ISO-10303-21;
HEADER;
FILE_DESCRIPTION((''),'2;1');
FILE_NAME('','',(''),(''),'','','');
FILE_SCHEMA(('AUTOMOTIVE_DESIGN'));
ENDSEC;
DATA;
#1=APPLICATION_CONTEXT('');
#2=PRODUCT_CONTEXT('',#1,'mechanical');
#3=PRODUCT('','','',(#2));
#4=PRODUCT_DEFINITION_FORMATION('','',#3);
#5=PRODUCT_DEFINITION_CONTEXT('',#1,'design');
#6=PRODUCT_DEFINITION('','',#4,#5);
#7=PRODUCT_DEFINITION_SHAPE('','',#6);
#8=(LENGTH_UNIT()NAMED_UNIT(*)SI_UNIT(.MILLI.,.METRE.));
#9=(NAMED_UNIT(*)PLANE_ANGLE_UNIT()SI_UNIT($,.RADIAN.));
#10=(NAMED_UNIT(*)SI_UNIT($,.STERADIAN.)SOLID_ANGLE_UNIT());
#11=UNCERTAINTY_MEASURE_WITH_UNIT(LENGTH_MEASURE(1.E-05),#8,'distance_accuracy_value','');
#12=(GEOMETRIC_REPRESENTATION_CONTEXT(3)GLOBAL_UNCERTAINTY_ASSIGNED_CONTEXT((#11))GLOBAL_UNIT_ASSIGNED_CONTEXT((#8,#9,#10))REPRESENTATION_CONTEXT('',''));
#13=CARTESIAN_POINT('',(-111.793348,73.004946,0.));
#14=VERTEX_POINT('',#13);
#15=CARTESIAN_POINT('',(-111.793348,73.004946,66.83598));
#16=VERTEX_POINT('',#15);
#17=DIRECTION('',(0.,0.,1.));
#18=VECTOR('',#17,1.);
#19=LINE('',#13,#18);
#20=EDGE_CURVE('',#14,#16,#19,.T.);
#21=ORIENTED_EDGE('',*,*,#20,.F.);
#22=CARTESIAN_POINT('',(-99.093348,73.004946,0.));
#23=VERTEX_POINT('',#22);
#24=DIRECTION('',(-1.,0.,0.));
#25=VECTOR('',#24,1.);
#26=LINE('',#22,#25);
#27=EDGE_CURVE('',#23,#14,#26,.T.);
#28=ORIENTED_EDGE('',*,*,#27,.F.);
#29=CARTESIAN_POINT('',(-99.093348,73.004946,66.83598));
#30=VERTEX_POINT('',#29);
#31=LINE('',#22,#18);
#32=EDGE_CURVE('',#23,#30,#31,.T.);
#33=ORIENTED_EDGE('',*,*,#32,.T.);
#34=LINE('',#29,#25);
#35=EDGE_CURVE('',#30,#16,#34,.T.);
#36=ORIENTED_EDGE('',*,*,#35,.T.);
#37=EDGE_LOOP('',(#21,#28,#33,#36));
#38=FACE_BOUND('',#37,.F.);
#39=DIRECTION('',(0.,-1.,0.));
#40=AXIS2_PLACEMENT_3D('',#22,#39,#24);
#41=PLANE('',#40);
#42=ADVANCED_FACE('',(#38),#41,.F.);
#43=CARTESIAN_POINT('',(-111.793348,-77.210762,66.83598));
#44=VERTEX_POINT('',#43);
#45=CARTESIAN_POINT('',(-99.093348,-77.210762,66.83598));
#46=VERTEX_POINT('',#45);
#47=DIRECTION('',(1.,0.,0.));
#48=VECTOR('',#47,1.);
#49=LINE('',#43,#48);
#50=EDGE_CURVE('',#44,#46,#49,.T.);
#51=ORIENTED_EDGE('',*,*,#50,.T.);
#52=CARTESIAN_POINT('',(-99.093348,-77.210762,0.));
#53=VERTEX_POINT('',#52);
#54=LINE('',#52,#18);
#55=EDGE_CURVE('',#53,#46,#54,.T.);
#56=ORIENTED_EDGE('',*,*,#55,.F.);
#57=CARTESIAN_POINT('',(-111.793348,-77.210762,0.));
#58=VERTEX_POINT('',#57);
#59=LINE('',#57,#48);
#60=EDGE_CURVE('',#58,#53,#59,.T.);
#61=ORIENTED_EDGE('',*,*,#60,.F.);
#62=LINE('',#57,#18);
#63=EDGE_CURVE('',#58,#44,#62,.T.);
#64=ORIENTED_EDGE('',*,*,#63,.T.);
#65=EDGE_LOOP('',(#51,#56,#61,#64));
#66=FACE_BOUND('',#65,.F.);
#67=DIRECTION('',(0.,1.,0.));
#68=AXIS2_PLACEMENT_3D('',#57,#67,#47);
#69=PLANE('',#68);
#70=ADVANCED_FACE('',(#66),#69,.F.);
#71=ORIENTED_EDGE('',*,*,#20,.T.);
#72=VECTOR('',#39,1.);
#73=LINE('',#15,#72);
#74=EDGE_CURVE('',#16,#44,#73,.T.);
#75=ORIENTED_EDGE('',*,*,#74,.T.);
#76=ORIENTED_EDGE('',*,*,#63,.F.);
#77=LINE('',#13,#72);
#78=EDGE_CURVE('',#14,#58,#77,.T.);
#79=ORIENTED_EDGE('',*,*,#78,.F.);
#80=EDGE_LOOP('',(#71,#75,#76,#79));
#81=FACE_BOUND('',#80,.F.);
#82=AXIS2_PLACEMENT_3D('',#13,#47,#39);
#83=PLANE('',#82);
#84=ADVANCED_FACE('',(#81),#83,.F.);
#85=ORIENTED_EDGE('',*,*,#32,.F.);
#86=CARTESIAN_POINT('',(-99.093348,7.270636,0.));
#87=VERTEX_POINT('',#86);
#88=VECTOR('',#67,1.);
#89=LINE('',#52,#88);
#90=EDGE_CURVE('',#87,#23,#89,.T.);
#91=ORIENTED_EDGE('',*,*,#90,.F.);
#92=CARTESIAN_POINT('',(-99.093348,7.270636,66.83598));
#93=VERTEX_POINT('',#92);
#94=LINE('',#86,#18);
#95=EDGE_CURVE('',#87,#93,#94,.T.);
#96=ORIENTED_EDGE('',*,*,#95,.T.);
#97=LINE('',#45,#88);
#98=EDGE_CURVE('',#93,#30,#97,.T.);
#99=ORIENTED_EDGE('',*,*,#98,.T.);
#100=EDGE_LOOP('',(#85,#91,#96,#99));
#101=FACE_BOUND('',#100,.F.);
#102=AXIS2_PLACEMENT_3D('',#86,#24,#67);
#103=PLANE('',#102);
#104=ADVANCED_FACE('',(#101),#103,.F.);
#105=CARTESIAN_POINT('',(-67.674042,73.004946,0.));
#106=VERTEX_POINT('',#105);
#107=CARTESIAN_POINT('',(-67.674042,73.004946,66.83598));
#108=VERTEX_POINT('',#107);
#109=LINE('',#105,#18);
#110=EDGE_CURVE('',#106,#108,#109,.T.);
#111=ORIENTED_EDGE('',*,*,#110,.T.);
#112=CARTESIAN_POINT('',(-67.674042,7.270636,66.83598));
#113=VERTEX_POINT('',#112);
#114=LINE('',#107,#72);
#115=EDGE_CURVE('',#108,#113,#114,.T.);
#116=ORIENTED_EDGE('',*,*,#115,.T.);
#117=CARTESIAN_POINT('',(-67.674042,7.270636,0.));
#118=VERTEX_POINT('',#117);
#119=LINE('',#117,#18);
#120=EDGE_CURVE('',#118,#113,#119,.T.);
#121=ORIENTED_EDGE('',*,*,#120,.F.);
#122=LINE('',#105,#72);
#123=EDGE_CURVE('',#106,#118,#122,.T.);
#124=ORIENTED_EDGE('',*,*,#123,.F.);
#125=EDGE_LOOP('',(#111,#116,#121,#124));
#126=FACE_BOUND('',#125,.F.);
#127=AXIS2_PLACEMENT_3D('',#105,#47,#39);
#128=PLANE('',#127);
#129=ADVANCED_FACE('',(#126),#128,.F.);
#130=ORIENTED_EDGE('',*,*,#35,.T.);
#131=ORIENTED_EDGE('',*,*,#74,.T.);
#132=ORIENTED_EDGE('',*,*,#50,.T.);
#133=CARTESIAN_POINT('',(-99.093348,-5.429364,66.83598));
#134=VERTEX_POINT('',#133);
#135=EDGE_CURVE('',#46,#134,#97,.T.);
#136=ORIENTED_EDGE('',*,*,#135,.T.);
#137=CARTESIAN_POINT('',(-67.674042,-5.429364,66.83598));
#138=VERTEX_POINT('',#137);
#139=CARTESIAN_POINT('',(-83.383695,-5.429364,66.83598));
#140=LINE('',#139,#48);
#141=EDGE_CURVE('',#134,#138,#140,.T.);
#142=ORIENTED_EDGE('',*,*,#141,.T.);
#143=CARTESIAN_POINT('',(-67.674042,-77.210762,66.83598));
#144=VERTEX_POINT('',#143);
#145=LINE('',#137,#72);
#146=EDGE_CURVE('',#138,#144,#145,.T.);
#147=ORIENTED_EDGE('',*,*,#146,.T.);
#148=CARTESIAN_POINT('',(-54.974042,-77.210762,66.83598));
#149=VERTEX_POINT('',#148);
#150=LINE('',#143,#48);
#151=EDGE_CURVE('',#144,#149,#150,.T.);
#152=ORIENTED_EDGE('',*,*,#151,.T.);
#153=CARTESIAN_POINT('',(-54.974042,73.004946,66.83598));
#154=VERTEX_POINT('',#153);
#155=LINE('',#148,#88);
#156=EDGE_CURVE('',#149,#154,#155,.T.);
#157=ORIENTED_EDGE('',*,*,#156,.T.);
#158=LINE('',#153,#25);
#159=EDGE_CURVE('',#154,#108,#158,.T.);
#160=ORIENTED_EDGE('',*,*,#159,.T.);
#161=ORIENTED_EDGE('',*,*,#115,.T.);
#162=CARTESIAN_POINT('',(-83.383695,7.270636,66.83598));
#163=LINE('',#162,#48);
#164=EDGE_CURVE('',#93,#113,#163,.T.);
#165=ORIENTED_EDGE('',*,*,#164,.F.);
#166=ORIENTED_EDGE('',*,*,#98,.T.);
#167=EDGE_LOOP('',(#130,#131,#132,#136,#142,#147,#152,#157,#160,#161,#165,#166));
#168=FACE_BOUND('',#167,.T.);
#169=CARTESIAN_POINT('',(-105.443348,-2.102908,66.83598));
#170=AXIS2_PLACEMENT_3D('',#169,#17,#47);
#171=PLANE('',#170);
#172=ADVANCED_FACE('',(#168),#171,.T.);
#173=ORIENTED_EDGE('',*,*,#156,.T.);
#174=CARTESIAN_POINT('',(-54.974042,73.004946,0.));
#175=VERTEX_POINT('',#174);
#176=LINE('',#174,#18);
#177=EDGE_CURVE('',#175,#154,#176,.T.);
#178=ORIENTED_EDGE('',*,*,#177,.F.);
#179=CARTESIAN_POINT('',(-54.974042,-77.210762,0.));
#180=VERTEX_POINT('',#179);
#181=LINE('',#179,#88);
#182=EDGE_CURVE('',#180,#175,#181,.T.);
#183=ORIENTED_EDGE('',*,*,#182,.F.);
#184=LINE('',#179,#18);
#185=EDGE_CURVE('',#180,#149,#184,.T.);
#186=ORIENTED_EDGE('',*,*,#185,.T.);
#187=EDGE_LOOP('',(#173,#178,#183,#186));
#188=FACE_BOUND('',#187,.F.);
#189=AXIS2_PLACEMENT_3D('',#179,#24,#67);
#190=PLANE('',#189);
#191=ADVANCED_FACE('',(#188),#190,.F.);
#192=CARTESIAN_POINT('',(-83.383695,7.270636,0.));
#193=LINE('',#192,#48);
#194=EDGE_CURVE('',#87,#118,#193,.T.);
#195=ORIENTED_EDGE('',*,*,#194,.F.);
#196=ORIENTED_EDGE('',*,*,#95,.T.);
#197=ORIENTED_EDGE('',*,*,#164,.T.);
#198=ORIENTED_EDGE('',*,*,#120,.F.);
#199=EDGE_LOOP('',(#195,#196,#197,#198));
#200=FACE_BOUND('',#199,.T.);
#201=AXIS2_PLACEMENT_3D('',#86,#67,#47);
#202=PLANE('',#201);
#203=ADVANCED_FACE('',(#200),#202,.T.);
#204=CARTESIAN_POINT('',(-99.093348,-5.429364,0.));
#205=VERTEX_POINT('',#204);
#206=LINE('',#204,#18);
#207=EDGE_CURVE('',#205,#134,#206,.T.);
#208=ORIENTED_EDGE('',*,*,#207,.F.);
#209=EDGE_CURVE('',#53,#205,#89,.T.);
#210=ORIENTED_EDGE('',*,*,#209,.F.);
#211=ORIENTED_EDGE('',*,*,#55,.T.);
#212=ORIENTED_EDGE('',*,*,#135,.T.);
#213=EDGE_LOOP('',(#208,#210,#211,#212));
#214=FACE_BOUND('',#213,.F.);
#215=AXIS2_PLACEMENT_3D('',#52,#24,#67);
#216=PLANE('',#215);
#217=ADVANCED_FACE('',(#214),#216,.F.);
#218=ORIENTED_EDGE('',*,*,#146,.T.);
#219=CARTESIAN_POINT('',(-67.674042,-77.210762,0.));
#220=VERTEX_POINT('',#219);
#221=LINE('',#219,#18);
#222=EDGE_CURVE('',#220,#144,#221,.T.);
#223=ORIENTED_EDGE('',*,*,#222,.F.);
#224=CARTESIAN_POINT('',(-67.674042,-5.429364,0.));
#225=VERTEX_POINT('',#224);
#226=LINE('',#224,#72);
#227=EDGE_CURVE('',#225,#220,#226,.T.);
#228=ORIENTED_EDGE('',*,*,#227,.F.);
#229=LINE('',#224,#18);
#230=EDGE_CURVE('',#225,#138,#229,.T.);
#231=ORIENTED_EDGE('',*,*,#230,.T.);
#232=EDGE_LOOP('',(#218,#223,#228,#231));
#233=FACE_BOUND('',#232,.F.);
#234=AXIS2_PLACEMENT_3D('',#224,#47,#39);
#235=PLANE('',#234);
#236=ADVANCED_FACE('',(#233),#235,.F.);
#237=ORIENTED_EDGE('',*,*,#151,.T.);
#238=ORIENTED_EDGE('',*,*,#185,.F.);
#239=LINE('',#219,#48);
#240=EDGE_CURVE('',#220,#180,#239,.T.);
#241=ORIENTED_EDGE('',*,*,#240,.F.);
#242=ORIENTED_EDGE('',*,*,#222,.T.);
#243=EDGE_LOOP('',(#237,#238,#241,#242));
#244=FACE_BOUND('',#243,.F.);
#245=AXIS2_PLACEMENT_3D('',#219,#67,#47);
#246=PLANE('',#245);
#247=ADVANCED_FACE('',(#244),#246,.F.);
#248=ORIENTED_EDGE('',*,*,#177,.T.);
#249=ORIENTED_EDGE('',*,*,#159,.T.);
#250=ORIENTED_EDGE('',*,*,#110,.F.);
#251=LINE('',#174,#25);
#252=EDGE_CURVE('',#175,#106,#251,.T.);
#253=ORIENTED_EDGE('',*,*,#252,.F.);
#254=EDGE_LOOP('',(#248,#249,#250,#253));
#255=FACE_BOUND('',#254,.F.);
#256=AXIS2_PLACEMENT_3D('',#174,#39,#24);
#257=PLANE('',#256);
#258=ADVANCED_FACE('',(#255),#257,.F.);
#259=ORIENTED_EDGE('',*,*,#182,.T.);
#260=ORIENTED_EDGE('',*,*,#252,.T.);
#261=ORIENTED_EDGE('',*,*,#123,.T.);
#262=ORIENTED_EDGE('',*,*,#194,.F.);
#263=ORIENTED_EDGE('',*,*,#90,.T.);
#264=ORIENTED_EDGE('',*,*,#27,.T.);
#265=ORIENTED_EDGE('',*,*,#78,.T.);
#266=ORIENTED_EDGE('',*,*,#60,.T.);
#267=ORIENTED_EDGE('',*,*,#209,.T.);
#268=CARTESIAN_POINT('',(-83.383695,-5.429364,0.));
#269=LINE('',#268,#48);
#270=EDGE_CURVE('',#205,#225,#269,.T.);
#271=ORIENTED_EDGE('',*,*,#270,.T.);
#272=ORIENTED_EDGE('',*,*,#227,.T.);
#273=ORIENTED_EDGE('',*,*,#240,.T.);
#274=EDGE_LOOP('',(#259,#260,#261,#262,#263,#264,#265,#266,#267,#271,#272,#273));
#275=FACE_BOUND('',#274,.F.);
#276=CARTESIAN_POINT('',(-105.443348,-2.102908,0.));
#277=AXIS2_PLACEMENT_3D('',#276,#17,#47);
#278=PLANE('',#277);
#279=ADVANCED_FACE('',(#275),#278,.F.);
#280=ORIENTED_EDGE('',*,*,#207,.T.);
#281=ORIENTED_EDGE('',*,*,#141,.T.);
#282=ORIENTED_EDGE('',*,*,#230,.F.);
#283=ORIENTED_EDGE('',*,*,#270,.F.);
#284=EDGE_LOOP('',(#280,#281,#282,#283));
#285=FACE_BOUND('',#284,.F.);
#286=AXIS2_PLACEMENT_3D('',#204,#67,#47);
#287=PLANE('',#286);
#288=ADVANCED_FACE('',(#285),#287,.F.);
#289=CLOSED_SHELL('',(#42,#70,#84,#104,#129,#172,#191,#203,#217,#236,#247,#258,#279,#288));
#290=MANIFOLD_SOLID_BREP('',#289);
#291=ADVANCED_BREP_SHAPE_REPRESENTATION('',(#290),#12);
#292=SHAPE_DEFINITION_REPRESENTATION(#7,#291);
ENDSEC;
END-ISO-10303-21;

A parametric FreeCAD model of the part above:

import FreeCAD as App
import Part
import Sketcher

V = App.Vector
Q = App.Units.Quantity


def add_polygon(sketch, points):
    """Adds a closed chain of lines whose ends are joined by coincident constraints."""
    first, n = sketch.GeometryCount, len(points)
    for a, b in zip(points, points[1:] + points[:1]):
        sketch.addGeometry(Part.LineSegment(App.Vector(*a, 0), App.Vector(*b, 0)), False)
    for i in range(n):
        sketch.addConstraint(Sketcher.Constraint("Coincident", first + i, 2, first + (i + 1) % n, 1))

doc = App.newDocument("Part")
body = doc.addObject("PartDesign::Body", "Body")

# Sketch on XY plane
sketch1 = body.newObject("Sketcher::SketchObject", "Sketch")
sketch1.AttachmentSupport = (doc.getObject("XY_Plane"), [""])
sketch1.MapMode = "FlatFace"
add_polygon(sketch1, [(-99, 73), (-112, 73), (-112, -77), (-99, -77), (-99, -5), (-68, -5), (-68, -77), (-55, -77), (-55, 73), (-68, 73), (-68, 7), (-99, 7)])  # lines 0-11
sketch1.addConstraint([
    Sketcher.Constraint("Horizontal", 0),
    Sketcher.Constraint("Vertical", 1),
    Sketcher.Constraint("Horizontal", 2),
    Sketcher.Constraint("Vertical", 3),
    Sketcher.Constraint("Horizontal", 4),
    Sketcher.Constraint("Vertical", 5),
    Sketcher.Constraint("Horizontal", 6),
    Sketcher.Constraint("Vertical", 7),
    Sketcher.Constraint("Horizontal", 8),
    Sketcher.Constraint("Vertical", 9),
    Sketcher.Constraint("Horizontal", 10),
    Sketcher.Constraint("Vertical", 11),
    Sketcher.Constraint("Horizontal", 2, 2, 5, 2),
    Sketcher.Constraint("Horizontal", 0, 2, 7, 2),
    Sketcher.Constraint("Vertical", 5, 2, 8, 2),
    Sketcher.Constraint("Vertical", 3, 2, 10, 2),
    Sketcher.Constraint("Equal", 2, 6),
    Sketcher.Constraint("DistanceX", 0, 2, 0, 1, Q("0.5 in")),
    Sketcher.Constraint("DistanceY", 4, 2, 9, 2, Q("0.5 in")),
    Sketcher.Constraint("DistanceY", 1, 2, 1, 1, 150.215708),
    Sketcher.Constraint("DistanceY", 9, 2, 9, 1, 65.73431),
    Sketcher.Constraint("DistanceX", 4, 1, 4, 2, 31.419306),
    Sketcher.Constraint("DistanceX", 2, 2, -1, 1, 99.093348),
    Sketcher.Constraint("DistanceY", -1, 1, 0, 2, 73.004946),
])
pad1 = body.newObject("PartDesign::Pad", "Pad")
pad1.Profile = sketch1
pad1.Length = 66.83598

doc.recompute()
